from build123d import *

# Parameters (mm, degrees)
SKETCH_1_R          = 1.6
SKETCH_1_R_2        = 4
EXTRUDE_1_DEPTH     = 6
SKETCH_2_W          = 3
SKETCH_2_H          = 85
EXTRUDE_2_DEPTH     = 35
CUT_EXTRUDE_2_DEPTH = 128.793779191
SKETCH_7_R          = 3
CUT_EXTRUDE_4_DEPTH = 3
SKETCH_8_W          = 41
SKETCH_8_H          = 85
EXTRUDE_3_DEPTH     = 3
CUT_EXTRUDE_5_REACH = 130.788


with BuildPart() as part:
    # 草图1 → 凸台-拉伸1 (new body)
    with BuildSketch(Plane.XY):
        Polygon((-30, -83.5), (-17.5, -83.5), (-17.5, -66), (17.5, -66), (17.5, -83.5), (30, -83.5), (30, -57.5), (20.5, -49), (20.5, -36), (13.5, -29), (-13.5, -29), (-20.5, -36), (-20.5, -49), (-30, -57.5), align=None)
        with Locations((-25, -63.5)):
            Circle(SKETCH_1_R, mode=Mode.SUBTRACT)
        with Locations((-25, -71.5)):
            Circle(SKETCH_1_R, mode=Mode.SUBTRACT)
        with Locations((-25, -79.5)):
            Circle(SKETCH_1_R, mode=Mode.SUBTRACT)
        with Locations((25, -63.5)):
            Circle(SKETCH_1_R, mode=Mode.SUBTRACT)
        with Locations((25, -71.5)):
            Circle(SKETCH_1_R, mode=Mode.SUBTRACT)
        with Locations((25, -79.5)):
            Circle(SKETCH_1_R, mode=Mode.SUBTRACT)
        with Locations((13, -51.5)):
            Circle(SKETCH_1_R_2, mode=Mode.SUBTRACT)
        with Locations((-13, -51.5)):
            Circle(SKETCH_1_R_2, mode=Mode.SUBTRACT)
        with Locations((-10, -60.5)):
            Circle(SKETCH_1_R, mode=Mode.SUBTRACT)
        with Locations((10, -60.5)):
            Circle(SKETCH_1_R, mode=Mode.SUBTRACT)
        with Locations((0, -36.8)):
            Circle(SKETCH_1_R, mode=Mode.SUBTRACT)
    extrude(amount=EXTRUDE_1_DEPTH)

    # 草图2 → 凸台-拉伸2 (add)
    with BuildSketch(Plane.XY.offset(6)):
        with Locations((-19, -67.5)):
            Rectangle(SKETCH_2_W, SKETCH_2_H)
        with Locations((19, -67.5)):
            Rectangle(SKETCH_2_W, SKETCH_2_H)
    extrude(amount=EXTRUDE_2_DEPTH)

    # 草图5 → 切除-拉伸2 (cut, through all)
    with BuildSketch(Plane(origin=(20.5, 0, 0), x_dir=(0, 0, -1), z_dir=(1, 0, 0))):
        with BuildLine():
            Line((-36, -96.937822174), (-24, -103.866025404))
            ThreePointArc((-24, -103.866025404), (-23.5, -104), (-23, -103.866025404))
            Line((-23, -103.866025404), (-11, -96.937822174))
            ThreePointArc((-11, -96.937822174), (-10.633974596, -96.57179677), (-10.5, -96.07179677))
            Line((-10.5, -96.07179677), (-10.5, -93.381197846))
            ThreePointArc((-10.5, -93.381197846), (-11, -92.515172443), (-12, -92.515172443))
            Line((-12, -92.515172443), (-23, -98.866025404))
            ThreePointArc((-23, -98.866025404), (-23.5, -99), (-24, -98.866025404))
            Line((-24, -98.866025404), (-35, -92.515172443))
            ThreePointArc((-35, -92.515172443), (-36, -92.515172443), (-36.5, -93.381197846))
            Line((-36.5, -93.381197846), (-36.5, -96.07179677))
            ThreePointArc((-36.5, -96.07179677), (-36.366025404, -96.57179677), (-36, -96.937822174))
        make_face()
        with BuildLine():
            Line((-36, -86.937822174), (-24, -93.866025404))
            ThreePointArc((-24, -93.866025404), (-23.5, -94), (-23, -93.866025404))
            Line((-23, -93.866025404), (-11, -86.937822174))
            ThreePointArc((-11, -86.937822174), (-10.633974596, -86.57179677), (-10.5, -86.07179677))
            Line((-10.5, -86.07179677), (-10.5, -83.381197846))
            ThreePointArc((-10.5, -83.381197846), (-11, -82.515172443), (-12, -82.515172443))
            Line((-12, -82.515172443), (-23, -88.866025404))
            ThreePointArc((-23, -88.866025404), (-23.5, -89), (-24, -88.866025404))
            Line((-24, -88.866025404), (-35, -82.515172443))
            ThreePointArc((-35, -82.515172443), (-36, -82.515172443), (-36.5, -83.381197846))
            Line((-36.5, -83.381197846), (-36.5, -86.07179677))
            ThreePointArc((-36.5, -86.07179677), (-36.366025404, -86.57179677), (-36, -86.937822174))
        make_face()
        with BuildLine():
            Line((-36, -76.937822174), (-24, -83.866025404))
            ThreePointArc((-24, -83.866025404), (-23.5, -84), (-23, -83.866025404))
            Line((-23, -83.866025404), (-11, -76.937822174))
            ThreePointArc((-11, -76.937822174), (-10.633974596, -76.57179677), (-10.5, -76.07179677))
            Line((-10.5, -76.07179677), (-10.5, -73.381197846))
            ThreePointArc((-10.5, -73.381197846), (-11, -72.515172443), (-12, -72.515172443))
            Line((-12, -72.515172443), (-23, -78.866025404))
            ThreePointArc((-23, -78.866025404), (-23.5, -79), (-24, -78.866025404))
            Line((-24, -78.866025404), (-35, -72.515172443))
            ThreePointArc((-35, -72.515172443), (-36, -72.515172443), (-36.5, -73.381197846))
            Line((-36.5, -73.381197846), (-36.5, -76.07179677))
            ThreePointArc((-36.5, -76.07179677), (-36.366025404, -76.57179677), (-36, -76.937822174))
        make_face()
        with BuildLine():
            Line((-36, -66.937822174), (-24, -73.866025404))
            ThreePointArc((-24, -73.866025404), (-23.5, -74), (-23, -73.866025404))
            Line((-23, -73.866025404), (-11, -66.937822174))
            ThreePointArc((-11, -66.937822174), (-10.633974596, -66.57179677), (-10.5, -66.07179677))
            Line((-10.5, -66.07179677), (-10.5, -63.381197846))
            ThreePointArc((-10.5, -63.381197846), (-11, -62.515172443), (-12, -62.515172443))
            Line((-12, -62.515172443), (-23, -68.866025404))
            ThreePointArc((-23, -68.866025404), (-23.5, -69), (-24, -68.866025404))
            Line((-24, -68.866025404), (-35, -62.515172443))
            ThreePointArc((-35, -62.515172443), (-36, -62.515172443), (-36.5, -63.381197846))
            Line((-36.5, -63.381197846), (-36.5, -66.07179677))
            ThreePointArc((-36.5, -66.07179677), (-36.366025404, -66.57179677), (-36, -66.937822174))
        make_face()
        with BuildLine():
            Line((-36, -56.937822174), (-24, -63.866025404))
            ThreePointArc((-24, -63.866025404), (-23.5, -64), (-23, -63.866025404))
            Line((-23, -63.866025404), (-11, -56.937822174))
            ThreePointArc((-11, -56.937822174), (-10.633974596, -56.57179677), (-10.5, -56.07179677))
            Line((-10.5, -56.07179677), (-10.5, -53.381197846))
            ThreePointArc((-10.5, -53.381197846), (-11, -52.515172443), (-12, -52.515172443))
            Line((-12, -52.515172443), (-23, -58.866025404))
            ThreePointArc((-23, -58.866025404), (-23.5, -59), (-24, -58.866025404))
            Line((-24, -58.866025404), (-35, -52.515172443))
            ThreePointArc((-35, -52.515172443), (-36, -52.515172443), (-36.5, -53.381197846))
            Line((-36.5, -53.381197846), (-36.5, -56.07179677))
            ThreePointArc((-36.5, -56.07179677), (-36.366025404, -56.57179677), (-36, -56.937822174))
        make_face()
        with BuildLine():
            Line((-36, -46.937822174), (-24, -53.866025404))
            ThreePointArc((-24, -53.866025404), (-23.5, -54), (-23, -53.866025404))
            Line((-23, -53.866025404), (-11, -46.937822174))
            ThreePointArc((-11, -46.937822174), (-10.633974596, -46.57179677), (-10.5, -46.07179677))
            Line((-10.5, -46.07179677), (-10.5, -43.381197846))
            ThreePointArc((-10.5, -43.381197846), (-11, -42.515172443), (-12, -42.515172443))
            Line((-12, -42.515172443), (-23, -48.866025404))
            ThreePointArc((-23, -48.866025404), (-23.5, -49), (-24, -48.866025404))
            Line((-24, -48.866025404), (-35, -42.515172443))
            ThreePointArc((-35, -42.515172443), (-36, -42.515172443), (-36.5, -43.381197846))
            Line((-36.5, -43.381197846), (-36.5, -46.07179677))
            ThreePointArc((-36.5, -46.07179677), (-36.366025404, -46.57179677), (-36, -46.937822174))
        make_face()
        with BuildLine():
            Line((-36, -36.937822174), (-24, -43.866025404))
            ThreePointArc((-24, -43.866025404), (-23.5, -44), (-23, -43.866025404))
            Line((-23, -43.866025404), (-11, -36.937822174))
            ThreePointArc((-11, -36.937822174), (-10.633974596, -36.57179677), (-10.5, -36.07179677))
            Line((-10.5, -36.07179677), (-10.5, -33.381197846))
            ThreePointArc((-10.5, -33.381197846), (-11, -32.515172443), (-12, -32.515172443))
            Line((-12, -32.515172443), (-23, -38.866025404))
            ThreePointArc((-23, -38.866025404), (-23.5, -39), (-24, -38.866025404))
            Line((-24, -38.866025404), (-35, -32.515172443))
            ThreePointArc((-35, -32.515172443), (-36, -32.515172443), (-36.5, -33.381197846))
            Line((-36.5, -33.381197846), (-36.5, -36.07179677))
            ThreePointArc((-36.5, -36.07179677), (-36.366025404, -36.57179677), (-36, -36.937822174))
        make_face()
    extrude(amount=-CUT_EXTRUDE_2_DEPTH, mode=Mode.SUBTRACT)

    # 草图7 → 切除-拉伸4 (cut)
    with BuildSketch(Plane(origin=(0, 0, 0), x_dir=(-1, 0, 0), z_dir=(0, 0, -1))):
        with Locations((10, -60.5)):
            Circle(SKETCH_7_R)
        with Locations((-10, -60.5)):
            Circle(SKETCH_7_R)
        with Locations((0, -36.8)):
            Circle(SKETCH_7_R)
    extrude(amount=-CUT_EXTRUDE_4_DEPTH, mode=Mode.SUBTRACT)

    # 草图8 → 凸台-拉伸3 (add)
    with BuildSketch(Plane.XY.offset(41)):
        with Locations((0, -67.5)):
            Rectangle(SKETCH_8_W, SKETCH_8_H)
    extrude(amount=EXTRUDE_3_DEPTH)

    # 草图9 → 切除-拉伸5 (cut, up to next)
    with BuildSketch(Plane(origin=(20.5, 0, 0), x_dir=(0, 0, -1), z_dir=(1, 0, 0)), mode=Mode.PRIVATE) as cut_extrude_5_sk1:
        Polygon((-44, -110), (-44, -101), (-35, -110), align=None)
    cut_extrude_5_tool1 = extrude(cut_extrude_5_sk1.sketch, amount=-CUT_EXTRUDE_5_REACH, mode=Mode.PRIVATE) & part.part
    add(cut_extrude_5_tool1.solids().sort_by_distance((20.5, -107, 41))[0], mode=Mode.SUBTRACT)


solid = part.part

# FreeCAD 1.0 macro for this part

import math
import FreeCAD as App
import Part
import Sketcher
from FreeCAD import Vector
Q = App.Units.Quantity


def add_polygon(sketch, points):
    """Adds a closed chain of lines whose ends are joined by coincident constraints."""
    first, n = sketch.GeometryCount, len(points)
    for a, b in zip(points, points[1:] + points[:1]):
        sketch.addGeometry(Part.LineSegment(App.Vector(*a, 0), App.Vector(*b, 0)), False)
    for i in range(n):
        sketch.addConstraint(Sketcher.Constraint("Coincident", first + i, 2, first + (i + 1) % n, 1))

doc = App.newDocument("Part")
body = doc.addObject("PartDesign::Body", "Body")

# Sketch on XY plane
sketch1 = body.newObject("Sketcher::SketchObject", "Sketch")
sketch1.AttachmentSupport = (doc.getObject("XY_Plane"), [""])
sketch1.MapMode = "FlatFace"
add_polygon(sketch1, [(-30, -83.5), (-17.5, -83.5), (-17.5, -66), (17.5, -66), (17.5, -83.5), (30, -83.5), (30, -57.5), (20.5, -49), (20.5, -36), (13.5, -29), (-13.5, -29), (-20.5, -36), (-20.5, -49), (-30, -57.5)])  # lines 0-13
sketch1.addGeometry(Part.Circle(Vector(-25, -79.5, 0), Vector(0, 0, 1), 1.6), False)  # 14
sketch1.addGeometry(Part.Circle(Vector(-25, -71.5, 0), Vector(0, 0, 1), 1.6), False)  # 15
sketch1.addGeometry(Part.Circle(Vector(-25, -63.5, 0), Vector(0, 0, 1), 1.6), False)  # 16
sketch1.addGeometry(Part.Circle(Vector(-10, -60.5, 0), Vector(0, 0, 1), 1.6), False)  # 17
sketch1.addGeometry(Part.Circle(Vector(25, -79.5, 0), Vector(0, 0, 1), 1.6), False)  # 18
sketch1.addGeometry(Part.Circle(Vector(25, -71.5, 0), Vector(0, 0, 1), 1.6), False)  # 19
sketch1.addGeometry(Part.Circle(Vector(10, -60.5, 0), Vector(0, 0, 1), 1.6), False)  # 20
sketch1.addGeometry(Part.Circle(Vector(25, -63.5, 0), Vector(0, 0, 1), 1.6), False)  # 21
sketch1.addGeometry(Part.Circle(Vector(-13, -51.5, 0), Vector(0, 0, 1), 4), False)  # 22
sketch1.addGeometry(Part.Circle(Vector(13, -51.5, 0), Vector(0, 0, 1), 4), False)  # 23
sketch1.addGeometry(Part.Circle(Vector(0, -36.8, 0), Vector(0, 0, 1), 1.6), False)  # 24
sketch1.addConstraint(Sketcher.Constraint("Horizontal", 0))
sketch1.addConstraint(Sketcher.Constraint("Vertical", 1))
sketch1.addConstraint(Sketcher.Constraint("Horizontal", 2))
sketch1.addConstraint(Sketcher.Constraint("Vertical", 3))
sketch1.addConstraint(Sketcher.Constraint("Horizontal", 4))
sketch1.addConstraint(Sketcher.Constraint("Vertical", 5))
sketch1.addConstraint(Sketcher.Constraint("Vertical", 7))
sketch1.addConstraint(Sketcher.Constraint("Horizontal", 9))
sketch1.addConstraint(Sketcher.Constraint("Vertical", 11))
sketch1.addConstraint(Sketcher.Constraint("Vertical", 13))
sketch1.addConstraint(Sketcher.Constraint("Equal", 14, 15))
sketch1.addConstraint(Sketcher.Constraint("Equal", 15, 16))
sketch1.addConstraint(Sketcher.Constraint("Equal", 16, 17))
sketch1.addConstraint(Sketcher.Constraint("Equal", 17, 18))
sketch1.addConstraint(Sketcher.Constraint("Equal", 18, 19))
sketch1.addConstraint(Sketcher.Constraint("Equal", 19, 20))
sketch1.addConstraint(Sketcher.Constraint("Equal", 20, 21))
sketch1.addConstraint(Sketcher.Constraint("Equal", 22, 23))
sketch1.addConstraint(Sketcher.Constraint("Equal", 21, 24))
sketch1.addConstraint(Sketcher.Constraint("Symmetric", 14, 3, 18, 3, -2))
sketch1.addConstraint(Sketcher.Constraint("Symmetric", 15, 3, 19, 3, -2))
sketch1.addConstraint(Sketcher.Constraint("Symmetric", 17, 3, 20, 3, -2))
sketch1.addConstraint(Sketcher.Constraint("Symmetric", 16, 3, 21, 3, -2))
sketch1.addConstraint(Sketcher.Constraint("Symmetric", 22, 3, 23, 3, -2))
sketch1.addConstraint(Sketcher.Constraint("Symmetric", 0, 2, 3, 2, -2))
sketch1.addConstraint(Sketcher.Constraint("Symmetric", 7, 2, 10, 2, -2))
sketch1.addConstraint(Sketcher.Constraint("Symmetric", 5, 2, 12, 2, -2))
sketch1.addConstraint(Sketcher.Constraint("PointOnObject", 24, 3, -2))
sketch1.addConstraint(Sketcher.Constraint("Perpendicular", 8, 10))
sketch1.addConstraint(Sketcher.Constraint("Horizontal", 6, 2, 11, 2))
sketch1.addConstraint(Sketcher.Constraint("Vertical", 14, 3, 15, 3))
sketch1.addConstraint(Sketcher.Constraint("Vertical", 15, 3, 16, 3))
sketch1.addConstraint(Sketcher.Constraint("Equal", 8, 10))
sketch1.addConstraint(Sketcher.Constraint("Diameter", 22, 8.0))
sketch1.addConstraint(Sketcher.Constraint("Diameter", 14, 3.2))
sketch1.addConstraint(Sketcher.Constraint("DistanceX", 2, 1, 2, 2, 35.0))
sketch1.addConstraint(Sketcher.Constraint("DistanceX", 9, 2, 9, 1, 27.0))
sketch1.addConstraint(Sketcher.Constraint("DistanceY", 5, 1, 5, 2, 26.0))
sketch1.addConstraint(Sketcher.Constraint("DistanceY", 7, 1, 7, 2, 13.0))
sketch1.addConstraint(Sketcher.Constraint("DistanceX", 0, 1, 0, 2, 12.5))
sketch1.addConstraint(Sketcher.Constraint("DistanceY", 1, 1, 1, 2, 17.5))
sketch1.addConstraint(Sketcher.Constraint("DistanceX", 14, 3, -1, 1, 25.0))
sketch1.addConstraint(Sketcher.Constraint("DistanceX", 17, 3, -1, 1, 10.0))
sketch1.addConstraint(Sketcher.Constraint("DistanceX", 22, 3, -1, 1, 13.0))
sketch1.addConstraint(Sketcher.Constraint("DistanceY", 1, 2, -1, 1, 66.0))
sketch1.addConstraint(Sketcher.Constraint("DistanceY", 6, 2, -1, 1, 49.0))
sketch1.addConstraint(Sketcher.Constraint("DistanceY", 8, 2, -1, 1, 29.0))
sketch1.addConstraint(Sketcher.Constraint("DistanceY", 14, 3, 15, 3, 8.0))
sketch1.addConstraint(Sketcher.Constraint("DistanceY", 15, 3, 16, 3, 8.0))
sketch1.addConstraint(Sketcher.Constraint("DistanceY", 16, 3, 17, 3, 3.0))
sketch1.addConstraint(Sketcher.Constraint("DistanceY", 17, 3, 22, 3, 9.0))
sketch1.addConstraint(Sketcher.Constraint("DistanceY", 0, 2, 14, 3, 4.0))
sketch1.addConstraint(Sketcher.Constraint("DistanceY", 24, 3, -1, 1, 36.8))
pad1 = body.newObject("PartDesign::Pad", "Pad")
pad1.Profile = sketch1
pad1.Length = 6

# Sketch on XY plane
sketch2 = body.newObject("Sketcher::SketchObject", "Sketch001")
sketch2.AttachmentSupport = (doc.getObject("XY_Plane"), [""])
sketch2.MapMode = "FlatFace"
sketch2.AttachmentOffset = App.Placement(Vector(0, 0, 6), App.Rotation())
add_polygon(sketch2, [(-20.5, -25), (-20.5, -110), (-17.5, -110), (-17.5, -25)])  # lines 0-3
add_polygon(sketch2, [(17.5, -25), (17.5, -110), (20.5, -110), (20.5, -25)])  # lines 4-7
sketch2.addConstraint(Sketcher.Constraint("Vertical", 0))
sketch2.addConstraint(Sketcher.Constraint("Horizontal", 1))
sketch2.addConstraint(Sketcher.Constraint("Vertical", 2))
sketch2.addConstraint(Sketcher.Constraint("Horizontal", 3))
sketch2.addConstraint(Sketcher.Constraint("Vertical", 4))
sketch2.addConstraint(Sketcher.Constraint("Horizontal", 5))
sketch2.addConstraint(Sketcher.Constraint("Vertical", 6))
sketch2.addConstraint(Sketcher.Constraint("Horizontal", 7))
sketch2.addConstraint(Sketcher.Constraint("Symmetric", 1, 2, 4, 2, -2))
sketch2.addConstraint(Sketcher.Constraint("Symmetric", 3, 2, 6, 2, -2))
sketch2.addConstraint(Sketcher.Constraint("DistanceX", 1, 1, 1, 2, 3.0))
sketch2.addConstraint(Sketcher.Constraint("DistanceY", 0, 2, 0, 1, 85.0))
sketch2.addConstraint(Sketcher.Constraint("DistanceY", 0, 2, -1, 1, 110.0))
sketch2.addConstraint(Sketcher.Constraint("DistanceX", 1, 2, 4, 2, 35.0))
pad2 = body.newObject("PartDesign::Pad", "Pad001")
pad2.Profile = sketch2
pad2.Length = 35

# Sketch on YZ plane
sketch3 = body.newObject("Sketcher::SketchObject", "Sketch002")
sketch3.AttachmentSupport = (doc.getObject("YZ_Plane"), [""])
sketch3.MapMode = "FlatFace"
sketch3.AttachmentOffset = App.Placement(Vector(0, 0, 20.5), App.Rotation())
sketch3.addGeometry(Part.LineSegment(Vector(-96.9, 36, 0), Vector(-103.9, 24, 0)), False)
sketch3.addGeometry(Part.ArcOfCircle(Part.Circle(Vector(-103, 23.5, 0), Vector(0, 0, 1), 1), math.radians(150), math.radians(210)), False)
sketch3.addGeometry(Part.LineSegment(Vector(-103.9, 23, 0), Vector(-96.9, 11, 0)), False)
sketch3.addGeometry(Part.ArcOfCircle(Part.Circle(Vector(-96.1, 11.5, 0), Vector(0, 0, 1), 1), math.radians(-150), math.radians(-90)), False)
sketch3.addGeometry(Part.LineSegment(Vector(-96.1, 10.5, 0), Vector(-93.4, 10.5, 0)), False)
sketch3.addGeometry(Part.ArcOfCircle(Part.Circle(Vector(-93.4, 11.5, 0), Vector(0, 0, 1), 1), math.radians(-90), math.radians(30)), False)
sketch3.addGeometry(Part.LineSegment(Vector(-92.5, 12, 0), Vector(-98.9, 23, 0)), False)
sketch3.addGeometry(Part.ArcOfCircle(Part.Circle(Vector(-98, 23.5, 0), Vector(0, 0, 1), 1), math.radians(150), math.radians(210)), False)
sketch3.addGeometry(Part.LineSegment(Vector(-98.9, 24, 0), Vector(-92.5, 35, 0)), False)
sketch3.addGeometry(Part.ArcOfCircle(Part.Circle(Vector(-93.4, 35.5, 0), Vector(0, 0, 1), 1), math.radians(-30), math.radians(90)), False)
sketch3.addGeometry(Part.LineSegment(Vector(-93.4, 36.5, 0), Vector(-96.1, 36.5, 0)), False)
sketch3.addGeometry(Part.ArcOfCircle(Part.Circle(Vector(-96.1, 35.5, 0), Vector(0, 0, 1), 1), math.radians(90), math.radians(150)), False)
sketch3.addGeometry(Part.LineSegment(Vector(-86.9, 36, 0), Vector(-93.9, 24, 0)), False)
sketch3.addGeometry(Part.ArcOfCircle(Part.Circle(Vector(-93, 23.5, 0), Vector(0, 0, 1), 1), math.radians(150), math.radians(210)), False)
sketch3.addGeometry(Part.LineSegment(Vector(-93.9, 23, 0), Vector(-86.9, 11, 0)), False)
sketch3.addGeometry(Part.ArcOfCircle(Part.Circle(Vector(-86.1, 11.5, 0), Vector(0, 0, 1), 1), math.radians(-150), math.radians(-90)), False)
sketch3.addGeometry(Part.LineSegment(Vector(-86.1, 10.5, 0), Vector(-83.4, 10.5, 0)), False)
sketch3.addGeometry(Part.ArcOfCircle(Part.Circle(Vector(-83.4, 11.5, 0), Vector(0, 0, 1), 1), math.radians(-90), math.radians(30)), False)
sketch3.addGeometry(Part.LineSegment(Vector(-82.5, 12, 0), Vector(-88.9, 23, 0)), False)
sketch3.addGeometry(Part.ArcOfCircle(Part.Circle(Vector(-88, 23.5, 0), Vector(0, 0, 1), 1), math.radians(150), math.radians(210)), False)
sketch3.addGeometry(Part.LineSegment(Vector(-88.9, 24, 0), Vector(-82.5, 35, 0)), False)
sketch3.addGeometry(Part.ArcOfCircle(Part.Circle(Vector(-83.4, 35.5, 0), Vector(0, 0, 1), 1), math.radians(-30), math.radians(90)), False)
sketch3.addGeometry(Part.LineSegment(Vector(-83.4, 36.5, 0), Vector(-86.1, 36.5, 0)), False)
sketch3.addGeometry(Part.ArcOfCircle(Part.Circle(Vector(-86.1, 35.5, 0), Vector(0, 0, 1), 1), math.radians(90), math.radians(150)), False)
sketch3.addGeometry(Part.LineSegment(Vector(-76.9, 36, 0), Vector(-83.9, 24, 0)), False)
sketch3.addGeometry(Part.ArcOfCircle(Part.Circle(Vector(-83, 23.5, 0), Vector(0, 0, 1), 1), math.radians(150), math.radians(210)), False)
sketch3.addGeometry(Part.LineSegment(Vector(-83.9, 23, 0), Vector(-76.9, 11, 0)), False)
sketch3.addGeometry(Part.ArcOfCircle(Part.Circle(Vector(-76.1, 11.5, 0), Vector(0, 0, 1), 1), math.radians(-150), math.radians(-90)), False)
sketch3.addGeometry(Part.LineSegment(Vector(-76.1, 10.5, 0), Vector(-73.4, 10.5, 0)), False)
sketch3.addGeometry(Part.ArcOfCircle(Part.Circle(Vector(-73.4, 11.5, 0), Vector(0, 0, 1), 1), math.radians(-90), math.radians(30)), False)
sketch3.addGeometry(Part.LineSegment(Vector(-72.5, 12, 0), Vector(-78.9, 23, 0)), False)
sketch3.addGeometry(Part.ArcOfCircle(Part.Circle(Vector(-78, 23.5, 0), Vector(0, 0, 1), 1), math.radians(150), math.radians(210)), False)
sketch3.addGeometry(Part.LineSegment(Vector(-78.9, 24, 0), Vector(-72.5, 35, 0)), False)
sketch3.addGeometry(Part.ArcOfCircle(Part.Circle(Vector(-73.4, 35.5, 0), Vector(0, 0, 1), 1), math.radians(-30), math.radians(90)), False)
sketch3.addGeometry(Part.LineSegment(Vector(-73.4, 36.5, 0), Vector(-76.1, 36.5, 0)), False)
sketch3.addGeometry(Part.ArcOfCircle(Part.Circle(Vector(-76.1, 35.5, 0), Vector(0, 0, 1), 1), math.radians(90), math.radians(150)), False)
sketch3.addGeometry(Part.LineSegment(Vector(-66.9, 36, 0), Vector(-73.9, 24, 0)), False)
sketch3.addGeometry(Part.ArcOfCircle(Part.Circle(Vector(-73, 23.5, 0), Vector(0, 0, 1), 1), math.radians(150), math.radians(210)), False)
sketch3.addGeometry(Part.LineSegment(Vector(-73.9, 23, 0), Vector(-66.9, 11, 0)), False)
sketch3.addGeometry(Part.ArcOfCircle(Part.Circle(Vector(-66.1, 11.5, 0), Vector(0, 0, 1), 1), math.radians(-150), math.radians(-90)), False)
sketch3.addGeometry(Part.LineSegment(Vector(-66.1, 10.5, 0), Vector(-63.4, 10.5, 0)), False)
sketch3.addGeometry(Part.ArcOfCircle(Part.Circle(Vector(-63.4, 11.5, 0), Vector(0, 0, 1), 1), math.radians(-90), math.radians(30)), False)
sketch3.addGeometry(Part.LineSegment(Vector(-62.5, 12, 0), Vector(-68.9, 23, 0)), False)
sketch3.addGeometry(Part.ArcOfCircle(Part.Circle(Vector(-68, 23.5, 0), Vector(0, 0, 1), 1), math.radians(150), math.radians(210)), False)
sketch3.addGeometry(Part.LineSegment(Vector(-68.9, 24, 0), Vector(-62.5, 35, 0)), False)
sketch3.addGeometry(Part.ArcOfCircle(Part.Circle(Vector(-63.4, 35.5, 0), Vector(0, 0, 1), 1), math.radians(-30), math.radians(90)), False)
sketch3.addGeometry(Part.LineSegment(Vector(-63.4, 36.5, 0), Vector(-66.1, 36.5, 0)), False)
sketch3.addGeometry(Part.ArcOfCircle(Part.Circle(Vector(-66.1, 35.5, 0), Vector(0, 0, 1), 1), math.radians(90), math.radians(150)), False)
sketch3.addGeometry(Part.LineSegment(Vector(-56.9, 36, 0), Vector(-63.9, 24, 0)), False)
sketch3.addGeometry(Part.ArcOfCircle(Part.Circle(Vector(-63, 23.5, 0), Vector(0, 0, 1), 1), math.radians(150), math.radians(210)), False)
sketch3.addGeometry(Part.LineSegment(Vector(-63.9, 23, 0), Vector(-56.9, 11, 0)), False)
sketch3.addGeometry(Part.ArcOfCircle(Part.Circle(Vector(-56.1, 11.5, 0), Vector(0, 0, 1), 1), math.radians(-150), math.radians(-90)), False)
sketch3.addGeometry(Part.LineSegment(Vector(-56.1, 10.5, 0), Vector(-53.4, 10.5, 0)), False)
sketch3.addGeometry(Part.ArcOfCircle(Part.Circle(Vector(-53.4, 11.5, 0), Vector(0, 0, 1), 1), math.radians(-90), math.radians(30)), False)
sketch3.addGeometry(Part.LineSegment(Vector(-52.5, 12, 0), Vector(-58.9, 23, 0)), False)
sketch3.addGeometry(Part.ArcOfCircle(Part.Circle(Vector(-58, 23.5, 0), Vector(0, 0, 1), 1), math.radians(150), math.radians(210)), False)
sketch3.addGeometry(Part.LineSegment(Vector(-58.9, 24, 0), Vector(-52.5, 35, 0)), False)
sketch3.addGeometry(Part.ArcOfCircle(Part.Circle(Vector(-53.4, 35.5, 0), Vector(0, 0, 1), 1), math.radians(-30), math.radians(90)), False)
sketch3.addGeometry(Part.LineSegment(Vector(-53.4, 36.5, 0), Vector(-56.1, 36.5, 0)), False)
sketch3.addGeometry(Part.ArcOfCircle(Part.Circle(Vector(-56.1, 35.5, 0), Vector(0, 0, 1), 1), math.radians(90), math.radians(150)), False)
sketch3.addGeometry(Part.LineSegment(Vector(-46.9, 36, 0), Vector(-53.9, 24, 0)), False)
sketch3.addGeometry(Part.ArcOfCircle(Part.Circle(Vector(-53, 23.5, 0), Vector(0, 0, 1), 1), math.radians(150), math.radians(210)), False)
sketch3.addGeometry(Part.LineSegment(Vector(-53.9, 23, 0), Vector(-46.9, 11, 0)), False)
sketch3.addGeometry(Part.ArcOfCircle(Part.Circle(Vector(-46.1, 11.5, 0), Vector(0, 0, 1), 1), math.radians(-150), math.radians(-90)), False)
sketch3.addGeometry(Part.LineSegment(Vector(-46.1, 10.5, 0), Vector(-43.4, 10.5, 0)), False)
sketch3.addGeometry(Part.ArcOfCircle(Part.Circle(Vector(-43.4, 11.5, 0), Vector(0, 0, 1), 1), math.radians(-90), math.radians(30)), False)
sketch3.addGeometry(Part.LineSegment(Vector(-42.5, 12, 0), Vector(-48.9, 23, 0)), False)
sketch3.addGeometry(Part.ArcOfCircle(Part.Circle(Vector(-48, 23.5, 0), Vector(0, 0, 1), 1), math.radians(150), math.radians(210)), False)
sketch3.addGeometry(Part.LineSegment(Vector(-48.9, 24, 0), Vector(-42.5, 35, 0)), False)
sketch3.addGeometry(Part.ArcOfCircle(Part.Circle(Vector(-43.4, 35.5, 0), Vector(0, 0, 1), 1), math.radians(-30), math.radians(90)), False)
sketch3.addGeometry(Part.LineSegment(Vector(-43.4, 36.5, 0), Vector(-46.1, 36.5, 0)), False)
sketch3.addGeometry(Part.ArcOfCircle(Part.Circle(Vector(-46.1, 35.5, 0), Vector(0, 0, 1), 1), math.radians(90), math.radians(150)), False)
sketch3.addGeometry(Part.LineSegment(Vector(-36.9, 36, 0), Vector(-43.9, 24, 0)), False)
sketch3.addGeometry(Part.ArcOfCircle(Part.Circle(Vector(-43, 23.5, 0), Vector(0, 0, 1), 1), math.radians(150), math.radians(210)), False)
sketch3.addGeometry(Part.LineSegment(Vector(-43.9, 23, 0), Vector(-36.9, 11, 0)), False)
sketch3.addGeometry(Part.ArcOfCircle(Part.Circle(Vector(-36.1, 11.5, 0), Vector(0, 0, 1), 1), math.radians(-150), math.radians(-90)), False)
sketch3.addGeometry(Part.LineSegment(Vector(-36.1, 10.5, 0), Vector(-33.4, 10.5, 0)), False)
sketch3.addGeometry(Part.ArcOfCircle(Part.Circle(Vector(-33.4, 11.5, 0), Vector(0, 0, 1), 1), math.radians(-90), math.radians(30)), False)
sketch3.addGeometry(Part.LineSegment(Vector(-32.5, 12, 0), Vector(-38.9, 23, 0)), False)
sketch3.addGeometry(Part.ArcOfCircle(Part.Circle(Vector(-38, 23.5, 0), Vector(0, 0, 1), 1), math.radians(150), math.radians(210)), False)
sketch3.addGeometry(Part.LineSegment(Vector(-38.9, 24, 0), Vector(-32.5, 35, 0)), False)
sketch3.addGeometry(Part.ArcOfCircle(Part.Circle(Vector(-33.4, 35.5, 0), Vector(0, 0, 1), 1), math.radians(-30), math.radians(90)), False)
sketch3.addGeometry(Part.LineSegment(Vector(-33.4, 36.5, 0), Vector(-36.1, 36.5, 0)), False)
sketch3.addGeometry(Part.ArcOfCircle(Part.Circle(Vector(-36.1, 35.5, 0), Vector(0, 0, 1), 1), math.radians(90), math.radians(150)), False)
sketch3.addConstraint(Sketcher.Constraint("Tangent", 0, 2, 1, 1))
sketch3.addConstraint(Sketcher.Constraint("Tangent", 1, 2, 2, 1))
sketch3.addConstraint(Sketcher.Constraint("Tangent", 2, 2, 3, 1))
sketch3.addConstraint(Sketcher.Constraint("Tangent", 3, 2, 4, 1))
sketch3.addConstraint(Sketcher.Constraint("Tangent", 4, 2, 5, 1))
sketch3.addConstraint(Sketcher.Constraint("Tangent", 5, 2, 6, 1))
sketch3.addConstraint(Sketcher.Constraint("Tangent", 6, 2, 7, 2))
sketch3.addConstraint(Sketcher.Constraint("Tangent", 7, 1, 8, 1))
sketch3.addConstraint(Sketcher.Constraint("Tangent", 8, 2, 9, 1))
sketch3.addConstraint(Sketcher.Constraint("Tangent", 9, 2, 10, 1))
sketch3.addConstraint(Sketcher.Constraint("Tangent", 10, 2, 11, 1))
sketch3.addConstraint(Sketcher.Constraint("Tangent", 11, 2, 0, 1))
sketch3.addConstraint(Sketcher.Constraint("Tangent", 12, 2, 13, 1))
sketch3.addConstraint(Sketcher.Constraint("Tangent", 13, 2, 14, 1))
sketch3.addConstraint(Sketcher.Constraint("Tangent", 14, 2, 15, 1))
sketch3.addConstraint(Sketcher.Constraint("Tangent", 15, 2, 16, 1))
sketch3.addConstraint(Sketcher.Constraint("Tangent", 16, 2, 17, 1))
sketch3.addConstraint(Sketcher.Constraint("Tangent", 17, 2, 18, 1))
sketch3.addConstraint(Sketcher.Constraint("Tangent", 18, 2, 19, 2))
sketch3.addConstraint(Sketcher.Constraint("Tangent", 19, 1, 20, 1))
sketch3.addConstraint(Sketcher.Constraint("Tangent", 20, 2, 21, 1))
sketch3.addConstraint(Sketcher.Constraint("Tangent", 21, 2, 22, 1))
sketch3.addConstraint(Sketcher.Constraint("Tangent", 22, 2, 23, 1))
sketch3.addConstraint(Sketcher.Constraint("Tangent", 23, 2, 12, 1))
sketch3.addConstraint(Sketcher.Constraint("Tangent", 24, 2, 25, 1))
sketch3.addConstraint(Sketcher.Constraint("Tangent", 25, 2, 26, 1))
sketch3.addConstraint(Sketcher.Constraint("Tangent", 26, 2, 27, 1))
sketch3.addConstraint(Sketcher.Constraint("Tangent", 27, 2, 28, 1))
sketch3.addConstraint(Sketcher.Constraint("Tangent", 28, 2, 29, 1))
sketch3.addConstraint(Sketcher.Constraint("Tangent", 29, 2, 30, 1))
sketch3.addConstraint(Sketcher.Constraint("Tangent", 30, 2, 31, 2))
sketch3.addConstraint(Sketcher.Constraint("Tangent", 31, 1, 32, 1))
sketch3.addConstraint(Sketcher.Constraint("Tangent", 32, 2, 33, 1))
sketch3.addConstraint(Sketcher.Constraint("Tangent", 33, 2, 34, 1))
sketch3.addConstraint(Sketcher.Constraint("Tangent", 34, 2, 35, 1))
sketch3.addConstraint(Sketcher.Constraint("Tangent", 35, 2, 24, 1))
sketch3.addConstraint(Sketcher.Constraint("Tangent", 36, 2, 37, 1))
sketch3.addConstraint(Sketcher.Constraint("Tangent", 37, 2, 38, 1))
sketch3.addConstraint(Sketcher.Constraint("Tangent", 38, 2, 39, 1))
sketch3.addConstraint(Sketcher.Constraint("Tangent", 39, 2, 40, 1))
sketch3.addConstraint(Sketcher.Constraint("Tangent", 40, 2, 41, 1))
sketch3.addConstraint(Sketcher.Constraint("Tangent", 41, 2, 42, 1))
sketch3.addConstraint(Sketcher.Constraint("Tangent", 42, 2, 43, 2))
sketch3.addConstraint(Sketcher.Constraint("Tangent", 43, 1, 44, 1))
sketch3.addConstraint(Sketcher.Constraint("Tangent", 44, 2, 45, 1))
sketch3.addConstraint(Sketcher.Constraint("Tangent", 45, 2, 46, 1))
sketch3.addConstraint(Sketcher.Constraint("Tangent", 46, 2, 47, 1))
sketch3.addConstraint(Sketcher.Constraint("Tangent", 47, 2, 36, 1))
sketch3.addConstraint(Sketcher.Constraint("Tangent", 48, 2, 49, 1))
sketch3.addConstraint(Sketcher.Constraint("Tangent", 49, 2, 50, 1))
sketch3.addConstraint(Sketcher.Constraint("Tangent", 50, 2, 51, 1))
sketch3.addConstraint(Sketcher.Constraint("Tangent", 51, 2, 52, 1))
sketch3.addConstraint(Sketcher.Constraint("Tangent", 52, 2, 53, 1))
sketch3.addConstraint(Sketcher.Constraint("Tangent", 53, 2, 54, 1))
sketch3.addConstraint(Sketcher.Constraint("Tangent", 54, 2, 55, 2))
sketch3.addConstraint(Sketcher.Constraint("Tangent", 55, 1, 56, 1))
sketch3.addConstraint(Sketcher.Constraint("Tangent", 56, 2, 57, 1))
sketch3.addConstraint(Sketcher.Constraint("Tangent", 57, 2, 58, 1))
sketch3.addConstraint(Sketcher.Constraint("Tangent", 58, 2, 59, 1))
sketch3.addConstraint(Sketcher.Constraint("Tangent", 59, 2, 48, 1))
sketch3.addConstraint(Sketcher.Constraint("Tangent", 60, 2, 61, 1))
sketch3.addConstraint(Sketcher.Constraint("Tangent", 61, 2, 62, 1))
sketch3.addConstraint(Sketcher.Constraint("Tangent", 62, 2, 63, 1))
sketch3.addConstraint(Sketcher.Constraint("Tangent", 63, 2, 64, 1))
sketch3.addConstraint(Sketcher.Constraint("Tangent", 64, 2, 65, 1))
sketch3.addConstraint(Sketcher.Constraint("Tangent", 65, 2, 66, 1))
sketch3.addConstraint(Sketcher.Constraint("Tangent", 66, 2, 67, 2))
sketch3.addConstraint(Sketcher.Constraint("Tangent", 67, 1, 68, 1))
sketch3.addConstraint(Sketcher.Constraint("Tangent", 68, 2, 69, 1))
sketch3.addConstraint(Sketcher.Constraint("Tangent", 69, 2, 70, 1))
sketch3.addConstraint(Sketcher.Constraint("Tangent", 70, 2, 71, 1))
sketch3.addConstraint(Sketcher.Constraint("Tangent", 71, 2, 60, 1))
sketch3.addConstraint(Sketcher.Constraint("Tangent", 72, 2, 73, 1))
sketch3.addConstraint(Sketcher.Constraint("Tangent", 73, 2, 74, 1))
sketch3.addConstraint(Sketcher.Constraint("Tangent", 74, 2, 75, 1))
sketch3.addConstraint(Sketcher.Constraint("Tangent", 75, 2, 76, 1))
sketch3.addConstraint(Sketcher.Constraint("Tangent", 76, 2, 77, 1))
sketch3.addConstraint(Sketcher.Constraint("Tangent", 77, 2, 78, 1))
sketch3.addConstraint(Sketcher.Constraint("Tangent", 78, 2, 79, 2))
sketch3.addConstraint(Sketcher.Constraint("Tangent", 79, 1, 80, 1))
sketch3.addConstraint(Sketcher.Constraint("Tangent", 80, 2, 81, 1))
sketch3.addConstraint(Sketcher.Constraint("Tangent", 81, 2, 82, 1))
sketch3.addConstraint(Sketcher.Constraint("Tangent", 82, 2, 83, 1))
sketch3.addConstraint(Sketcher.Constraint("Tangent", 83, 2, 72, 1))
sketch3.addConstraint(Sketcher.Constraint("Horizontal", 4))
sketch3.addConstraint(Sketcher.Constraint("Horizontal", 10))
sketch3.addConstraint(Sketcher.Constraint("Horizontal", 16))
sketch3.addConstraint(Sketcher.Constraint("Horizontal", 22))
sketch3.addConstraint(Sketcher.Constraint("Horizontal", 28))
sketch3.addConstraint(Sketcher.Constraint("Horizontal", 34))
sketch3.addConstraint(Sketcher.Constraint("Horizontal", 40))
sketch3.addConstraint(Sketcher.Constraint("Horizontal", 46))
sketch3.addConstraint(Sketcher.Constraint("Horizontal", 52))
sketch3.addConstraint(Sketcher.Constraint("Horizontal", 58))
sketch3.addConstraint(Sketcher.Constraint("Horizontal", 64))
sketch3.addConstraint(Sketcher.Constraint("Horizontal", 70))
sketch3.addConstraint(Sketcher.Constraint("Horizontal", 76))
sketch3.addConstraint(Sketcher.Constraint("Horizontal", 82))
sketch3.addConstraint(Sketcher.Constraint("Equal", 1, 3))
sketch3.addConstraint(Sketcher.Constraint("Equal", 3, 5))
sketch3.addConstraint(Sketcher.Constraint("Equal", 5, 7))
sketch3.addConstraint(Sketcher.Constraint("Equal", 7, 9))
sketch3.addConstraint(Sketcher.Constraint("Equal", 9, 11))
sketch3.addConstraint(Sketcher.Constraint("Equal", 11, 13))
sketch3.addConstraint(Sketcher.Constraint("Equal", 13, 15))
sketch3.addConstraint(Sketcher.Constraint("Equal", 15, 17))
sketch3.addConstraint(Sketcher.Constraint("Equal", 17, 19))
sketch3.addConstraint(Sketcher.Constraint("Equal", 19, 21))
sketch3.addConstraint(Sketcher.Constraint("Equal", 21, 23))
sketch3.addConstraint(Sketcher.Constraint("Equal", 23, 25))
sketch3.addConstraint(Sketcher.Constraint("Equal", 25, 27))
sketch3.addConstraint(Sketcher.Constraint("Equal", 27, 29))
sketch3.addConstraint(Sketcher.Constraint("Equal", 29, 31))
sketch3.addConstraint(Sketcher.Constraint("Equal", 31, 33))
sketch3.addConstraint(Sketcher.Constraint("Equal", 33, 35))
sketch3.addConstraint(Sketcher.Constraint("Equal", 35, 37))
sketch3.addConstraint(Sketcher.Constraint("Equal", 37, 39))
sketch3.addConstraint(Sketcher.Constraint("Equal", 39, 41))
sketch3.addConstraint(Sketcher.Constraint("Equal", 41, 43))
sketch3.addConstraint(Sketcher.Constraint("Equal", 43, 45))
sketch3.addConstraint(Sketcher.Constraint("Equal", 45, 47))
sketch3.addConstraint(Sketcher.Constraint("Equal", 47, 49))
sketch3.addConstraint(Sketcher.Constraint("Equal", 49, 51))
sketch3.addConstraint(Sketcher.Constraint("Equal", 51, 53))
sketch3.addConstraint(Sketcher.Constraint("Equal", 53, 55))
sketch3.addConstraint(Sketcher.Constraint("Equal", 55, 57))
sketch3.addConstraint(Sketcher.Constraint("Equal", 57, 59))
sketch3.addConstraint(Sketcher.Constraint("Equal", 59, 61))
sketch3.addConstraint(Sketcher.Constraint("Equal", 61, 63))
sketch3.addConstraint(Sketcher.Constraint("Equal", 63, 65))
sketch3.addConstraint(Sketcher.Constraint("Equal", 65, 67))
sketch3.addConstraint(Sketcher.Constraint("Equal", 67, 69))
sketch3.addConstraint(Sketcher.Constraint("Equal", 69, 71))
sketch3.addConstraint(Sketcher.Constraint("Equal", 71, 73))
sketch3.addConstraint(Sketcher.Constraint("Equal", 73, 75))
sketch3.addConstraint(Sketcher.Constraint("Equal", 75, 77))
sketch3.addConstraint(Sketcher.Constraint("Equal", 77, 79))
sketch3.addConstraint(Sketcher.Constraint("Equal", 79, 81))
sketch3.addConstraint(Sketcher.Constraint("Equal", 81, 83))
sketch3.addConstraint(Sketcher.Constraint("Parallel", 2, 6))
sketch3.addConstraint(Sketcher.Constraint("Parallel", 0, 8))
sketch3.addConstraint(Sketcher.Constraint("Parallel", 8, 12))
sketch3.addConstraint(Sketcher.Constraint("Parallel", 6, 14))
sketch3.addConstraint(Sketcher.Constraint("Parallel", 14, 18))
sketch3.addConstraint(Sketcher.Constraint("Parallel", 12, 20))
sketch3.addConstraint(Sketcher.Constraint("Parallel", 20, 24))
sketch3.addConstraint(Sketcher.Constraint("Parallel", 18, 26))
sketch3.addConstraint(Sketcher.Constraint("Parallel", 26, 30))
sketch3.addConstraint(Sketcher.Constraint("Parallel", 24, 32))
sketch3.addConstraint(Sketcher.Constraint("Parallel", 32, 36))
sketch3.addConstraint(Sketcher.Constraint("Parallel", 30, 38))
sketch3.addConstraint(Sketcher.Constraint("Parallel", 38, 42))
sketch3.addConstraint(Sketcher.Constraint("Parallel", 36, 44))
sketch3.addConstraint(Sketcher.Constraint("Parallel", 44, 48))
sketch3.addConstraint(Sketcher.Constraint("Parallel", 42, 50))
sketch3.addConstraint(Sketcher.Constraint("Parallel", 50, 54))
sketch3.addConstraint(Sketcher.Constraint("Parallel", 48, 56))
sketch3.addConstraint(Sketcher.Constraint("Parallel", 56, 60))
sketch3.addConstraint(Sketcher.Constraint("Parallel", 54, 62))
sketch3.addConstraint(Sketcher.Constraint("Parallel", 62, 66))
sketch3.addConstraint(Sketcher.Constraint("Parallel", 60, 68))
sketch3.addConstraint(Sketcher.Constraint("Parallel", 68, 72))
sketch3.addConstraint(Sketcher.Constraint("Parallel", 66, 74))
sketch3.addConstraint(Sketcher.Constraint("Parallel", 74, 78))
sketch3.addConstraint(Sketcher.Constraint("Parallel", 72, 80))
sketch3.addConstraint(Sketcher.Constraint("Horizontal", 1, 3, 7, 3))
sketch3.addConstraint(Sketcher.Constraint("Horizontal", 7, 3, 13, 3))
sketch3.addConstraint(Sketcher.Constraint("Horizontal", 5, 3, 15, 3))
sketch3.addConstraint(Sketcher.Constraint("Horizontal", 13, 3, 19, 3))
sketch3.addConstraint(Sketcher.Constraint("Horizontal", 11, 3, 21, 3))
sketch3.addConstraint(Sketcher.Constraint("Horizontal", 19, 3, 25, 3))
sketch3.addConstraint(Sketcher.Constraint("Horizontal", 17, 3, 27, 3))
sketch3.addConstraint(Sketcher.Constraint("Horizontal", 25, 3, 31, 3))
sketch3.addConstraint(Sketcher.Constraint("Horizontal", 23, 3, 33, 3))
sketch3.addConstraint(Sketcher.Constraint("Horizontal", 31, 3, 37, 3))
sketch3.addConstraint(Sketcher.Constraint("Horizontal", 29, 3, 39, 3))
sketch3.addConstraint(Sketcher.Constraint("Horizontal", 37, 3, 43, 3))
sketch3.addConstraint(Sketcher.Constraint("Horizontal", 35, 3, 45, 3))
sketch3.addConstraint(Sketcher.Constraint("Horizontal", 43, 3, 49, 3))
sketch3.addConstraint(Sketcher.Constraint("Horizontal", 41, 3, 51, 3))
sketch3.addConstraint(Sketcher.Constraint("Horizontal", 49, 3, 55, 3))
sketch3.addConstraint(Sketcher.Constraint("Horizontal", 47, 3, 57, 3))
sketch3.addConstraint(Sketcher.Constraint("Horizontal", 55, 3, 61, 3))
sketch3.addConstraint(Sketcher.Constraint("Horizontal", 53, 3, 63, 3))
sketch3.addConstraint(Sketcher.Constraint("Horizontal", 61, 3, 67, 3))
sketch3.addConstraint(Sketcher.Constraint("Horizontal", 59, 3, 69, 3))
sketch3.addConstraint(Sketcher.Constraint("Horizontal", 67, 3, 73, 3))
sketch3.addConstraint(Sketcher.Constraint("Horizontal", 65, 3, 75, 3))
sketch3.addConstraint(Sketcher.Constraint("Horizontal", 73, 3, 79, 3))
sketch3.addConstraint(Sketcher.Constraint("Horizontal", 71, 3, 81, 3))
sketch3.addConstraint(Sketcher.Constraint("Vertical", 5, 3, 9, 3))
sketch3.addConstraint(Sketcher.Constraint("Vertical", 3, 3, 11, 3))
sketch3.addConstraint(Sketcher.Constraint("Equal", 10, 16))
sketch3.addConstraint(Sketcher.Constraint("Equal", 22, 28))
sketch3.addConstraint(Sketcher.Constraint("Equal", 34, 40))
sketch3.addConstraint(Sketcher.Constraint("Equal", 46, 52))
sketch3.addConstraint(Sketcher.Constraint("Equal", 58, 64))
sketch3.addConstraint(Sketcher.Constraint("Equal", 70, 76))
sketch3.addConstraint(Sketcher.Constraint("Radius", 1, 1.0))
sketch3.addConstraint(Sketcher.Constraint("Angle", 0, Q("-120 deg")))
sketch3.addConstraint(Sketcher.Constraint("DistanceX", 1, 3, -1, 1, 103.0))
sketch3.addConstraint(Sketcher.Constraint("DistanceX", 7, 3, -1, 1, 98.0))
sketch3.addConstraint(Sketcher.Constraint("DistanceX", 13, 3, -1, 1, 93.0))
sketch3.addConstraint(Sketcher.Constraint("DistanceX", 25, 3, -1, 1, 83.0))
sketch3.addConstraint(Sketcher.Constraint("DistanceX", 37, 3, -1, 1, 73.0))
sketch3.addConstraint(Sketcher.Constraint("DistanceX", 49, 3, -1, 1, 63.0))
sketch3.addConstraint(Sketcher.Constraint("DistanceX", 61, 3, -1, 1, 53.0))
sketch3.addConstraint(Sketcher.Constraint("DistanceX", 73, 3, -1, 1, 43.0))
sketch3.addConstraint(Sketcher.Constraint("DistanceY", -1, 1, 0, 2, 24.0))
sketch3.addConstraint(Sketcher.Constraint("DistanceY", -1, 1, 2, 2, 11.0))
pocket1 = body.newObject("PartDesign::Pocket", "Pocket")
pocket1.Profile = sketch3
pocket1.Type = "ThroughAll"

# Sketch on XY plane
sketch4 = body.newObject("Sketcher::SketchObject", "Sketch003")
sketch4.AttachmentSupport = (doc.getObject("XY_Plane"), [""])
sketch4.MapMode = "FlatFace"
sketch4.addGeometry(Part.Circle(Vector(-10, -60.5, 0), Vector(0, 0, 1), 3), False)
sketch4.addGeometry(Part.Circle(Vector(10, -60.5, 0), Vector(0, 0, 1), 3), False)
sketch4.addGeometry(Part.Circle(Vector(0, -36.8, 0), Vector(0, 0, 1), 3), False)
sketch4.addConstraint(Sketcher.Constraint("Equal", 0, 1))
sketch4.addConstraint(Sketcher.Constraint("Equal", 1, 2))
sketch4.addConstraint(Sketcher.Constraint("Symmetric", 0, 3, 1, 3, -2))
sketch4.addConstraint(Sketcher.Constraint("PointOnObject", 2, 3, -2))
sketch4.addConstraint(Sketcher.Constraint("Diameter", 0, 6.0))
sketch4.addConstraint(Sketcher.Constraint("DistanceX", 0, 3, -1, 1, 10.0))
sketch4.addConstraint(Sketcher.Constraint("DistanceY", 0, 3, -1, 1, 60.5))
sketch4.addConstraint(Sketcher.Constraint("DistanceY", 2, 3, -1, 1, 36.8))
pocket2 = body.newObject("PartDesign::Pocket", "Pocket001")
pocket2.Profile = sketch4
pocket2.Length = 3
pocket2.Reversed = True

# Sketch on XY plane
sketch5 = body.newObject("Sketcher::SketchObject", "Sketch004")
sketch5.AttachmentSupport = (doc.getObject("XY_Plane"), [""])
sketch5.MapMode = "FlatFace"
sketch5.AttachmentOffset = App.Placement(Vector(0, 0, 41), App.Rotation())
add_polygon(sketch5, [(-20, -25), (-20, -110), (20, -110), (20, -25)])  # lines 0-3
sketch5.addConstraint(Sketcher.Constraint("Vertical", 0))
sketch5.addConstraint(Sketcher.Constraint("Horizontal", 1))
sketch5.addConstraint(Sketcher.Constraint("Vertical", 2))
sketch5.addConstraint(Sketcher.Constraint("Horizontal", 3))
sketch5.addConstraint(Sketcher.Constraint("DistanceX", 1, 1, 1, 2, 41.0))
sketch5.addConstraint(Sketcher.Constraint("DistanceY", 0, 2, 0, 1, 85.0))
sketch5.addConstraint(Sketcher.Constraint("DistanceY", 0, 2, -1, 1, 110.0))
sketch5.addConstraint(Sketcher.Constraint("DistanceX", 0, 2, -1, 1, 20.5))
pad3 = body.newObject("PartDesign::Pad", "Pad002")
pad3.Profile = sketch5
pad3.Length = 3

# Sketch on YZ plane
sketch6 = body.newObject("Sketcher::SketchObject", "Sketch005")
sketch6.AttachmentSupport = (doc.getObject("YZ_Plane"), [""])
sketch6.MapMode = "FlatFace"
sketch6.AttachmentOffset = App.Placement(Vector(0, 0, 20.5), App.Rotation())
add_polygon(sketch6, [(-101, 44), (-110, 44), (-110, 35)])  # lines 0-2
sketch6.addConstraint(Sketcher.Constraint("Horizontal", 0))
sketch6.addConstraint(Sketcher.Constraint("Vertical", 1))
sketch6.addConstraint(Sketcher.Constraint("Equal", 0, 1))
sketch6.addConstraint(Sketcher.Constraint("DistanceX", 0, 2, 0, 1, 9.0))
sketch6.addConstraint(Sketcher.Constraint("DistanceX", 0, 2, -1, 1, 110.0))
sketch6.addConstraint(Sketcher.Constraint("DistanceY", -1, 1, 0, 2, 44.0))
pocket3 = body.newObject("PartDesign::Pocket", "Pocket002")
pocket3.Profile = sketch6
pocket3.Length = 41

doc.recompute()
